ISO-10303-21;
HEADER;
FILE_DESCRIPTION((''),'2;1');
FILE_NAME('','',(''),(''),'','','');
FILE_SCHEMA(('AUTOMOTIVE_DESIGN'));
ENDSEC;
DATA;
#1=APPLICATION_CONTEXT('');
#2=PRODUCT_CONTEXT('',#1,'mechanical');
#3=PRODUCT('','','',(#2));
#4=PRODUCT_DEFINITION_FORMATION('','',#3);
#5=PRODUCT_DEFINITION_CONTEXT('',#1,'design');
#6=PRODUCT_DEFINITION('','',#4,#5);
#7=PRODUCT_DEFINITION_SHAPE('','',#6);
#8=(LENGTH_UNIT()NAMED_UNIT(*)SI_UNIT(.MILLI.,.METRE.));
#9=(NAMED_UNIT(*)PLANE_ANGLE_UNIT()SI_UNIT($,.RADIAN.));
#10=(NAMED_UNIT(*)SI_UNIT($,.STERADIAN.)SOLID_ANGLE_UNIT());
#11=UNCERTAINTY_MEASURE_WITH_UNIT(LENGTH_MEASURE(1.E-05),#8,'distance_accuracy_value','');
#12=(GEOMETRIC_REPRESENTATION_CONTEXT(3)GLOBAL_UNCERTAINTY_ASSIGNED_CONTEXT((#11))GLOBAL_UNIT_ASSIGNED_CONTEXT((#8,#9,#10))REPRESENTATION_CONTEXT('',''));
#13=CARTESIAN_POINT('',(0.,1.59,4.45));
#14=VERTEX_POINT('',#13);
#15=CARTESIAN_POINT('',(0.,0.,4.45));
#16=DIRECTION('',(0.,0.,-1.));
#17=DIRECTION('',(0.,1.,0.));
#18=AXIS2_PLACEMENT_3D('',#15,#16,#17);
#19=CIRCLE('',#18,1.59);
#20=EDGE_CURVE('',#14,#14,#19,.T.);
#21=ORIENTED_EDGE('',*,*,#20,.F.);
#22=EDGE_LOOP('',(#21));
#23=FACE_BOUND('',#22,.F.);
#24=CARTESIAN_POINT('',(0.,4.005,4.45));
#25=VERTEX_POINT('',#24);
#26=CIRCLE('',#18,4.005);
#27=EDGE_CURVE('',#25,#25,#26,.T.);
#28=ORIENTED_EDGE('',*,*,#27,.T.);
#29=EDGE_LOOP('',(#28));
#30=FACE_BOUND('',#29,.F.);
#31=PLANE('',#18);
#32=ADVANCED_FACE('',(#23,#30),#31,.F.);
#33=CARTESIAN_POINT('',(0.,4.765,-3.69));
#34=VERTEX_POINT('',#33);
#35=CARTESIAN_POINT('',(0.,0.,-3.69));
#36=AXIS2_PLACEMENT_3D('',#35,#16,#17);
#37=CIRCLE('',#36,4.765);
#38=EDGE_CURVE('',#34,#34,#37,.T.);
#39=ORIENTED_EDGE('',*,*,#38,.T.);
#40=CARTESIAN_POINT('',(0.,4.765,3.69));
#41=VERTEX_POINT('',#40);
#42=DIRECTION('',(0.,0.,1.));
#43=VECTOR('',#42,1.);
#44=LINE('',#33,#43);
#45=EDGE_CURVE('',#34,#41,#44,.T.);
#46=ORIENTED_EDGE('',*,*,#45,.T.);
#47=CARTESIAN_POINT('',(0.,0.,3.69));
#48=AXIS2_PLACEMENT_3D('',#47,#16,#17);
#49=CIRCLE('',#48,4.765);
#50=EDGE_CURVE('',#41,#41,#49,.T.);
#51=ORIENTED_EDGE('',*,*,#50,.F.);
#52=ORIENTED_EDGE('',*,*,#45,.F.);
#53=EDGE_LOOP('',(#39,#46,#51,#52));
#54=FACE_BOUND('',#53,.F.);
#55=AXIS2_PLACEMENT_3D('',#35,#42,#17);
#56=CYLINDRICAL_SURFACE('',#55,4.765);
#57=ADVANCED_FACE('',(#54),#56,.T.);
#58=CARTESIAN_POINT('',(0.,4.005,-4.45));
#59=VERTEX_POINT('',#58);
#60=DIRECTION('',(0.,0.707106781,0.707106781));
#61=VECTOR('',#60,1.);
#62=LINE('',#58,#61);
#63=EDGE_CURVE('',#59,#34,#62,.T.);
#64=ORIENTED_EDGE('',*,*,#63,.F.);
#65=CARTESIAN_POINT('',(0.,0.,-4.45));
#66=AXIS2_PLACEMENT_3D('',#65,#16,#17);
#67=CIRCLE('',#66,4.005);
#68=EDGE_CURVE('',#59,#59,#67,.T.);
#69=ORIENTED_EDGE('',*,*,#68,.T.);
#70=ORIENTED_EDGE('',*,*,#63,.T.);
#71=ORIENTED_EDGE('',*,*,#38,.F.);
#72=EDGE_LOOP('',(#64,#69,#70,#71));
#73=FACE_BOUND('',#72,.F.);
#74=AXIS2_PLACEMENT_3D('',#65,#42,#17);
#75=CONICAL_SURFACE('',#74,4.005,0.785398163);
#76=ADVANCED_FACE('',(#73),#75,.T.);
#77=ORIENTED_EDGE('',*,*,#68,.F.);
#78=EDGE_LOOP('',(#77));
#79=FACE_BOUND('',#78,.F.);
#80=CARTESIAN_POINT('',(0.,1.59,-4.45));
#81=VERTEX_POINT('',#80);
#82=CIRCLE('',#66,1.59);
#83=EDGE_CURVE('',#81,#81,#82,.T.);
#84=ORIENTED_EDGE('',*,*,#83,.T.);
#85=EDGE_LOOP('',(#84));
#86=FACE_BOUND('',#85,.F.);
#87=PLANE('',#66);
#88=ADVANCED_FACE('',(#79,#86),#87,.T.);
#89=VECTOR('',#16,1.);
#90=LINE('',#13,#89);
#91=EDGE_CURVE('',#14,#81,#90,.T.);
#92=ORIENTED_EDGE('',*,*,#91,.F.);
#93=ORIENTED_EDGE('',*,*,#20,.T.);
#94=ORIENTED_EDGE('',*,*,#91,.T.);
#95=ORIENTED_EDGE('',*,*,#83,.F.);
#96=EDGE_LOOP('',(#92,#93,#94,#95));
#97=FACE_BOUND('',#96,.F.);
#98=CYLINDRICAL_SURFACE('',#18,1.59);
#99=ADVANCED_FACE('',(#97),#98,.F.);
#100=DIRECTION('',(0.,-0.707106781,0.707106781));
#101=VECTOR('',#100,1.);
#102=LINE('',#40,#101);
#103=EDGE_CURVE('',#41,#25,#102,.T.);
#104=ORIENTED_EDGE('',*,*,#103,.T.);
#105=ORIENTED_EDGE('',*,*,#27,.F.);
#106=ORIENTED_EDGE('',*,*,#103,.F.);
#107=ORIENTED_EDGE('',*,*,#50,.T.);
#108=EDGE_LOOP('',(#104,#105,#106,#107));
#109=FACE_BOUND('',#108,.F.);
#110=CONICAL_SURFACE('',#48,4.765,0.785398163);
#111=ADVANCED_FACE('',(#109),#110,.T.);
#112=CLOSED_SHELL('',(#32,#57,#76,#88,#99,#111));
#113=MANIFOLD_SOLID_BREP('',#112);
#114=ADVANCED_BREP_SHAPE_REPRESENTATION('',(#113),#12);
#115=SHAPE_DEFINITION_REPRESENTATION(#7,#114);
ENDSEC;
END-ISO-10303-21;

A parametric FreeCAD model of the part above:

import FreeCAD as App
import Part
import Sketcher
from FreeCAD import Vector
Q = App.Units.Quantity

doc = App.newDocument("Part")
body = doc.addObject("PartDesign::Body", "Body")

sketch1 = doc.addObject("Sketcher::SketchObject", "Sketch")
body.addObject(sketch1)
sketch1.AttachmentSupport = (doc.YZ_Plane, [""])
sketch1.MapMode = "FlatFace"
sketch1.addGeometry([
    Part.LineSegment(Vector(4.8, 3.7, 0), Vector(4, 4.5, 0)),
    Part.LineSegment(Vector(4, 4.5, 0), Vector(1.6, 4.5, 0)),
    Part.LineSegment(Vector(1.6, 4.5, 0), Vector(1.6, -4.5, 0)),
    Part.LineSegment(Vector(1.6, -4.5, 0), Vector(4, -4.5, 0)),
    Part.LineSegment(Vector(4, -4.5, 0), Vector(4.8, -3.7, 0)),
    Part.LineSegment(Vector(4.8, -3.7, 0), Vector(4.8, 3.7, 0)),
], False)
sketch1.addConstraint([
    Sketcher.Constraint("Coincident", 0, 2, 1, 1),
    Sketcher.Constraint("Coincident", 1, 2, 2, 1),
    Sketcher.Constraint("Coincident", 2, 2, 3, 1),
    Sketcher.Constraint("Coincident", 3, 2, 4, 1),
    Sketcher.Constraint("Coincident", 4, 2, 5, 1),
    Sketcher.Constraint("Coincident", 5, 2, 0, 1),
    Sketcher.Constraint("Horizontal", 1),
    Sketcher.Constraint("Vertical", 2),
    Sketcher.Constraint("Horizontal", 3),
    Sketcher.Constraint("Vertical", 5),
    Sketcher.Constraint("Symmetric", 0, 2, 3, 2, -1),
    Sketcher.Constraint("Perpendicular", 0, 4),
    Sketcher.Constraint("Equal", 0, 4),
    Sketcher.Constraint("DistanceY", 2, 2, 2, 1, Q("8.9 mm")),
    Sketcher.Constraint("DistanceY", 5, 1, 5, 2, Q("7.38 mm")),
    Sketcher.Constraint("DistanceX", 1, 2, 1, 1, Q("2.415 mm")),
    Sketcher.Constraint("DistanceX", -1, 1, 1, 2, Q("1.59 mm")),
])
revolution = doc.addObject("PartDesign::Revolution", "Revolution")
body.addObject(revolution)
revolution.Profile = sketch1
revolution.ReferenceAxis = (sketch1, ["V_Axis"])
revolution.Angle = 360

doc.recompute()
